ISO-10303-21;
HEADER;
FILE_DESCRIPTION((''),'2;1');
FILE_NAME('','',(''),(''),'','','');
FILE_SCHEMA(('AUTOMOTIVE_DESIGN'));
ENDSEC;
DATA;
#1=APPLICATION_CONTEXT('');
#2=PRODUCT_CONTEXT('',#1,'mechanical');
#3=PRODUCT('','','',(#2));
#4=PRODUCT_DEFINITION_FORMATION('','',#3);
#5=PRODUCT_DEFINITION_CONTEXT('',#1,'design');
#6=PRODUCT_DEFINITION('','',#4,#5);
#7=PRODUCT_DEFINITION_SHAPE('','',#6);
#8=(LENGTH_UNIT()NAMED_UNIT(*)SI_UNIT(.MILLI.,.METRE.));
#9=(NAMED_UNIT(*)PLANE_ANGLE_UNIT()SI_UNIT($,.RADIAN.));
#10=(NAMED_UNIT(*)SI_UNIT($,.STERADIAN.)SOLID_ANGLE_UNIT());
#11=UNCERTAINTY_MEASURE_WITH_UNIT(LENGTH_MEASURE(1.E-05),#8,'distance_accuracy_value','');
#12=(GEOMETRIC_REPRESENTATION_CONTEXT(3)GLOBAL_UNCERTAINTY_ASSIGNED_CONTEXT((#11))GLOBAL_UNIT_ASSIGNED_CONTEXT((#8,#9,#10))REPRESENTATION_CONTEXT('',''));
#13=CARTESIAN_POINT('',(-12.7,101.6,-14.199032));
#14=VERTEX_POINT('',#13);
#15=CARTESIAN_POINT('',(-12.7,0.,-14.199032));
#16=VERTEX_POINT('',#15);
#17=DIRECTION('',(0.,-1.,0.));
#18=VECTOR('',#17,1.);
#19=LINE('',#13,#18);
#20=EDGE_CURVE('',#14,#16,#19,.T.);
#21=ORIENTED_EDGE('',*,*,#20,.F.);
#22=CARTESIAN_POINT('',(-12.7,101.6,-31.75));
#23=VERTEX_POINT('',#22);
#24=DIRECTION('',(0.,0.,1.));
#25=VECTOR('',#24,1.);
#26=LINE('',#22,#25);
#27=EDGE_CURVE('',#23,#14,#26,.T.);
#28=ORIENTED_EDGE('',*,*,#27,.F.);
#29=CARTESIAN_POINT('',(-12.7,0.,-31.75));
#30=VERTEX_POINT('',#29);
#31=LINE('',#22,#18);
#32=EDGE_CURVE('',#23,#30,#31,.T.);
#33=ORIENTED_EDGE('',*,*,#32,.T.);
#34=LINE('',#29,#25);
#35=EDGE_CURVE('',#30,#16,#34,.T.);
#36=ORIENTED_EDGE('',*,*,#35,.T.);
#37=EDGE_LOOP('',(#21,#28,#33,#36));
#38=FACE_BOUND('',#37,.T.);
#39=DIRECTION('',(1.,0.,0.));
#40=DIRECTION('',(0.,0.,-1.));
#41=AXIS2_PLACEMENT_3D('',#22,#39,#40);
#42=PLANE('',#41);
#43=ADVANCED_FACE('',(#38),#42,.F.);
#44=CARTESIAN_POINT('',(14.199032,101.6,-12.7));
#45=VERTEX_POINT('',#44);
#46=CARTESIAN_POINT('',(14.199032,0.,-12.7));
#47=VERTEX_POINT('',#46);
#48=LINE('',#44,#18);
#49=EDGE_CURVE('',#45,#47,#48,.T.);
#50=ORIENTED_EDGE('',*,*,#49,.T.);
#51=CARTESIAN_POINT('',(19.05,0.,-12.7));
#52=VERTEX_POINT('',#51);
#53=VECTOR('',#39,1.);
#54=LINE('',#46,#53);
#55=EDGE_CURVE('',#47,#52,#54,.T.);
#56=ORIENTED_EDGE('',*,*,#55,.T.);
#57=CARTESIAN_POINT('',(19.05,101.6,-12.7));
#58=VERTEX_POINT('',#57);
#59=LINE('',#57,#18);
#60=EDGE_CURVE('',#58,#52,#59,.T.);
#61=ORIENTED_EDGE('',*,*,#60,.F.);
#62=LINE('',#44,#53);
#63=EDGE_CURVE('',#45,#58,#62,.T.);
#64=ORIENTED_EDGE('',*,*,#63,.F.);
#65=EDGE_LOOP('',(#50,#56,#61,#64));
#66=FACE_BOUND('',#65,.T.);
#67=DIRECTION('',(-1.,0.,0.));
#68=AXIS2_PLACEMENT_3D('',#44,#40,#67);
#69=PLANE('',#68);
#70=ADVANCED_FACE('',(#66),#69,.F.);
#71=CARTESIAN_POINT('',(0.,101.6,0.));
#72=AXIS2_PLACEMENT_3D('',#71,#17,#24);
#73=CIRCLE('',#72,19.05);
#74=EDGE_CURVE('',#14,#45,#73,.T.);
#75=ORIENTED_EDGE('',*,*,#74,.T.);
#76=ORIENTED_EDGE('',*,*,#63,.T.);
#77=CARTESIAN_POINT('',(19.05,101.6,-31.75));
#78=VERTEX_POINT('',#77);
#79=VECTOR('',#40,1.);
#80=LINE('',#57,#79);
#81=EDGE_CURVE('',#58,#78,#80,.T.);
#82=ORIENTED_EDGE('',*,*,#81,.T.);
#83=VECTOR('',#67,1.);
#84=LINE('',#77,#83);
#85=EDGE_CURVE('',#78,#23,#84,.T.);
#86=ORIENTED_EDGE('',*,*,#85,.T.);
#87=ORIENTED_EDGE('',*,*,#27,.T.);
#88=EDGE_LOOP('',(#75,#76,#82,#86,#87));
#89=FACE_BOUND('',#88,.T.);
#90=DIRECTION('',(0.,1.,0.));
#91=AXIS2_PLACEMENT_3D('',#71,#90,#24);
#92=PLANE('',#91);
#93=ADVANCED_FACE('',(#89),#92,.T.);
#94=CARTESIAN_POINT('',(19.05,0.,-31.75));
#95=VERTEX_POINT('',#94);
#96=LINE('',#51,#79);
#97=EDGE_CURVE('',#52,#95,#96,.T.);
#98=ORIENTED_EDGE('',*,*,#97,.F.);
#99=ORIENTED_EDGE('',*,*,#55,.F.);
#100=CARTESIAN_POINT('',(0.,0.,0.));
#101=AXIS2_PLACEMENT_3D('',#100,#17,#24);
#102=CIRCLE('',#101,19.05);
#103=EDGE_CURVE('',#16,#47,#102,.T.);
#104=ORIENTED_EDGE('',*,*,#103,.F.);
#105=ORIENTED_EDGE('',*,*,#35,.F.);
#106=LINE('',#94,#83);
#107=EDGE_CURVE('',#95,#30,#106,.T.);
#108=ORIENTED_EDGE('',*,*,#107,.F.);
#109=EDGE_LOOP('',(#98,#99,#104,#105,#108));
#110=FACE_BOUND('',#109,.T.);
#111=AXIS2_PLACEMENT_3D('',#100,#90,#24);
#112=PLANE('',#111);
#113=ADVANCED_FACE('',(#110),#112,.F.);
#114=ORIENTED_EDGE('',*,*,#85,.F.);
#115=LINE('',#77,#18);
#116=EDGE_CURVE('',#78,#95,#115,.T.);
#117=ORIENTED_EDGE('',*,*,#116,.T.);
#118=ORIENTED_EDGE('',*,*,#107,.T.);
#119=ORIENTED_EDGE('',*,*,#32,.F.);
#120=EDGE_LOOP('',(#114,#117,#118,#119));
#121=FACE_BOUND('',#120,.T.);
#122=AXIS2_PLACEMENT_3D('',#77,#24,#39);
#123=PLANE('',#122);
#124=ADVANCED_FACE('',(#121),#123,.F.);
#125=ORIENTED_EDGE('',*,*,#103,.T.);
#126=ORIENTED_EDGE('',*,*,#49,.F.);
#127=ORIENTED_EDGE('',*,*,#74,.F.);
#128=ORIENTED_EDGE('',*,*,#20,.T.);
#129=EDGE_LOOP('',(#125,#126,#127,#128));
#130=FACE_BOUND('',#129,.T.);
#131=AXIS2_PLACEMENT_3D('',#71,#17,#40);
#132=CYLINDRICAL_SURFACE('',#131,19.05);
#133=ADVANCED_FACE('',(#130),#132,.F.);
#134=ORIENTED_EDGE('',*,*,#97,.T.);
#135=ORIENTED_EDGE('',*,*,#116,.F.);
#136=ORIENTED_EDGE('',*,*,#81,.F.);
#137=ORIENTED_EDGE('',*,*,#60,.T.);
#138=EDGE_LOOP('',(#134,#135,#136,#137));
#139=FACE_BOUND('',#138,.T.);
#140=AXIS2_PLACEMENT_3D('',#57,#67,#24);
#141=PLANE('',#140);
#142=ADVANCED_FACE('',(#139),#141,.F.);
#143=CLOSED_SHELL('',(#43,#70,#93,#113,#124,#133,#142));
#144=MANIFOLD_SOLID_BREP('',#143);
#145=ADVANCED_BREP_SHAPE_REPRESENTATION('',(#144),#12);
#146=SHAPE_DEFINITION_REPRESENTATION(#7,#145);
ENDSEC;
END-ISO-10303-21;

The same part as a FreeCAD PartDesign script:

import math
import FreeCAD as App
import Part
import Sketcher

V = App.Vector
Q = App.Units.Quantity

doc = App.newDocument("Part")
body = doc.addObject("PartDesign::Body", "Body")

sketch1 = body.newObject("Sketcher::SketchObject", "Sketch")
sketch1.AttachmentSupport = (doc.getObject("XZ_Plane"), [""])
sketch1.MapMode = "FlatFace"
sketch1.addGeometry(Part.LineSegment(V(19.1, -12.7, 0), V(19.1, -31.8, 0)), False)
sketch1.addGeometry(Part.LineSegment(V(19.1, -31.8, 0), V(-12.7, -31.8, 0)), False)
sketch1.addGeometry(Part.LineSegment(V(-12.7, -31.8, 0), V(-12.7, -14.2, 0)), False)
sketch1.addGeometry(Part.ArcOfCircle(Part.Circle(V(0, 0, 0), V(0, 0, 1), 19.1), math.radians(-132), math.radians(-42)), False)
sketch1.addGeometry(Part.LineSegment(V(14.2, -12.7, 0), V(19.1, -12.7, 0)), False)
sketch1.addConstraint(Sketcher.Constraint("Coincident", 0, 2, 1, 1))
sketch1.addConstraint(Sketcher.Constraint("Coincident", 1, 2, 2, 1))
sketch1.addConstraint(Sketcher.Constraint("Coincident", 2, 2, 3, 1))
sketch1.addConstraint(Sketcher.Constraint("Coincident", 3, 2, 4, 1))
sketch1.addConstraint(Sketcher.Constraint("Coincident", 4, 2, 0, 1))
sketch1.addConstraint(Sketcher.Constraint("Vertical", 0))
sketch1.addConstraint(Sketcher.Constraint("Horizontal", 1))
sketch1.addConstraint(Sketcher.Constraint("Vertical", 2))
sketch1.addConstraint(Sketcher.Constraint("Horizontal", 4))
sketch1.addConstraint(Sketcher.Constraint("Coincident", 3, 3, -1, 1))
sketch1.addConstraint(Sketcher.Constraint("Radius", 3, Q("0.75 in")))
sketch1.addConstraint(Sketcher.Constraint("DistanceX", 1, 2, 1, 1, Q("1.25 in")))
sketch1.addConstraint(Sketcher.Constraint("DistanceY", 0, 2, 0, 1, Q("0.75 in")))
sketch1.addConstraint(Sketcher.Constraint("DistanceX", 1, 2, -1, 1, Q("0.5 in")))
sketch1.addConstraint(Sketcher.Constraint("DistanceY", 3, 2, -1, 1, Q("0.5 in")))
pad1 = body.newObject("PartDesign::Pad", "Pad")
pad1.Profile = sketch1
pad1.Length = Q("4 in")
pad1.Reversed = True

doc.recompute()
